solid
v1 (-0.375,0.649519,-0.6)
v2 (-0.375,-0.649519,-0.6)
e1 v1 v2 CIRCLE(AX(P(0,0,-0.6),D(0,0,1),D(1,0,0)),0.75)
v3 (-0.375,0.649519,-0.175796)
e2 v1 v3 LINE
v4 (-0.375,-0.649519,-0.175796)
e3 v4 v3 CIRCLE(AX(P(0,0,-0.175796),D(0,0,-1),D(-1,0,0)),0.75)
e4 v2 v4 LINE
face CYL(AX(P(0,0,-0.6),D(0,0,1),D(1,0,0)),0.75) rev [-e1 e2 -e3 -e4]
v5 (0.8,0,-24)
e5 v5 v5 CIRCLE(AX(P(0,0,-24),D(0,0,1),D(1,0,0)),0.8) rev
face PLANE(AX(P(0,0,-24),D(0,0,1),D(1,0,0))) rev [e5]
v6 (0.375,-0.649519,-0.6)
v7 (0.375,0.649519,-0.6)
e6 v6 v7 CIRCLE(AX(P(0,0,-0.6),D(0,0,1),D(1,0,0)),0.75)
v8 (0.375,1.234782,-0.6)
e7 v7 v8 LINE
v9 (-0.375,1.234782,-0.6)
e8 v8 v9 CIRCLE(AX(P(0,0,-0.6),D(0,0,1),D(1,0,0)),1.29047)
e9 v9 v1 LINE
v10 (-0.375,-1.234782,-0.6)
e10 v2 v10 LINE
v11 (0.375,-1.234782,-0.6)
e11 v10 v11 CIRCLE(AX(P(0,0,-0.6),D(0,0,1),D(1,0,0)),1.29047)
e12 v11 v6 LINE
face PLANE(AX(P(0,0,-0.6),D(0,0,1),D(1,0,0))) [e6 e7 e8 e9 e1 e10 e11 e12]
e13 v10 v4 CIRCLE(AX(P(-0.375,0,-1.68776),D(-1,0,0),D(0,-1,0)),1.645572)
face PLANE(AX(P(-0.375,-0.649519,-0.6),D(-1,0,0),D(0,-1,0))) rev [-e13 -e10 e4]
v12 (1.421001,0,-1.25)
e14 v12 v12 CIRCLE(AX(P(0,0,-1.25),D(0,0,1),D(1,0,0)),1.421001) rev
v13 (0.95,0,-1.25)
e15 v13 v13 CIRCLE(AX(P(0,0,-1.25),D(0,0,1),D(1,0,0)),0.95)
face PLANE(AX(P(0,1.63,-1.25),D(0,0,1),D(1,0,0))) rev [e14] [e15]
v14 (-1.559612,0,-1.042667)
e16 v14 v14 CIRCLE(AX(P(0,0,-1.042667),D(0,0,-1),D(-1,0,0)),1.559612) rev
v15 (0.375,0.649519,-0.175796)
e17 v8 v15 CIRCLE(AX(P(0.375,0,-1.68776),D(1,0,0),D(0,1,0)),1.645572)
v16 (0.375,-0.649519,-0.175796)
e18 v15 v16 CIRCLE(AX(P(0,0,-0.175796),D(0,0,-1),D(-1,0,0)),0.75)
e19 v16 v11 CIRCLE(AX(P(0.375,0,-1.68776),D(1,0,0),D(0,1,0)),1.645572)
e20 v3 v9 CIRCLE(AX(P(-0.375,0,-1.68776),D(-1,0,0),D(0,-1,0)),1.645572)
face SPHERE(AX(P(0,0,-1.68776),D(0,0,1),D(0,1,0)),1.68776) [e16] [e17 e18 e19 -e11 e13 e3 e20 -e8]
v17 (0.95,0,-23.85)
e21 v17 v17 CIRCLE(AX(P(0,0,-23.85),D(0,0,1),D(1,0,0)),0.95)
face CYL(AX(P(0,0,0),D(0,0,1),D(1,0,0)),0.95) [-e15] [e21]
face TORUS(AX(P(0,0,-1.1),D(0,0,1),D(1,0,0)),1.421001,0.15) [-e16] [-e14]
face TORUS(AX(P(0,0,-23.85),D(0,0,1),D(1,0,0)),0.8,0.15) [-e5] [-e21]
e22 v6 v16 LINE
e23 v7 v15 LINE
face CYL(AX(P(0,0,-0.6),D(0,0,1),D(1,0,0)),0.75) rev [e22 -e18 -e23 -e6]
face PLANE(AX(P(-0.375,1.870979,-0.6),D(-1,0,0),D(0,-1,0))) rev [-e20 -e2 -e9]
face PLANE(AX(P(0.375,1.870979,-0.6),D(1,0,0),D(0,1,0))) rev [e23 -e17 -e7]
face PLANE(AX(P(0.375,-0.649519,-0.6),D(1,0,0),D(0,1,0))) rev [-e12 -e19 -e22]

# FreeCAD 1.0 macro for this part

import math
import FreeCAD as App
import Part
import Sketcher


def edges_at(feature, points):
    """Names of the edges that pass closest to the given points."""
    edges = feature.Shape.Edges
    near = lambda p: min(range(len(edges)), key=lambda i: edges[i].distToShape(Part.Vertex(*p))[0])
    return sorted({f"Edge{near(p) + 1}" for p in points})

doc = App.newDocument("Part")
body = doc.addObject("PartDesign::Body", "Body")

# Sketch on YZ plane
sketch1 = body.newObject("Sketcher::SketchObject", "Sketch")
sketch1.AttachmentSupport = (doc.getObject("YZ_Plane"), [""])
sketch1.MapMode = "FlatFace"
sketch1.addGeometry(Part.LineSegment(App.Vector(0, 0, 0), App.Vector(0, -24, 0)), False)
sketch1.addGeometry(Part.LineSegment(App.Vector(0, -24, 0), App.Vector(0.9, -24, 0)), False)
sketch1.addGeometry(Part.LineSegment(App.Vector(0.9, -24, 0), App.Vector(0.9, -1.2, 0)), False)
sketch1.addGeometry(Part.LineSegment(App.Vector(0.9, -1.2, 0), App.Vector(1.6, -1.2, 0)), False)
sketch1.addGeometry(Part.ArcOfCircle(Part.Circle(App.Vector(0, -1.7, 0), App.Vector(0, 0, 1), 1.7), math.radians(15), math.radians(90)), False)
sketch1.addConstraint(Sketcher.Constraint("Coincident", 0, 2, 1, 1))
sketch1.addConstraint(Sketcher.Constraint("Coincident", 1, 2, 2, 1))
sketch1.addConstraint(Sketcher.Constraint("Coincident", 2, 2, 3, 1))
sketch1.addConstraint(Sketcher.Constraint("Coincident", 3, 2, 4, 1))
sketch1.addConstraint(Sketcher.Constraint("Coincident", 4, 2, 0, 1))
sketch1.addConstraint(Sketcher.Constraint("Vertical", 0))
sketch1.addConstraint(Sketcher.Constraint("Horizontal", 1))
sketch1.addConstraint(Sketcher.Constraint("Vertical", 2))
sketch1.addConstraint(Sketcher.Constraint("Horizontal", 3))
sketch1.addConstraint(Sketcher.Constraint("Coincident", 4, 2, -1, 1))
sketch1.addConstraint(Sketcher.Constraint("PointOnObject", 4, 3, -2))
sketch1.addConstraint(Sketcher.Constraint("DistanceY", 0, 2, 0, 1, 24.0))
sketch1.addConstraint(Sketcher.Constraint("DistanceX", 1, 1, 1, 2, 0.95))
sketch1.addConstraint(Sketcher.Constraint("DistanceX", 3, 1, 3, 2, 0.68))
sketch1.addConstraint(Sketcher.Constraint("DistanceY", 2, 1, 2, 2, 22.75))
revolution = body.newObject("PartDesign::Revolution", "Revolution")
revolution.Profile = sketch1
revolution.ReferenceAxis = (sketch1, ["V_Axis"])
revolution.Angle = 360

# Sketch on XY plane
sketch2 = body.newObject("Sketcher::SketchObject", "Sketch001")
sketch2.AttachmentSupport = (doc.getObject("XY_Plane"), [""])
sketch2.MapMode = "FlatFace"
sketch2.addGeometry(Part.LineSegment(App.Vector(-0.4, -0.6, 0), App.Vector(-0.4, -1.9, 0)), False)
sketch2.addGeometry(Part.LineSegment(App.Vector(-0.4, -1.9, 0), App.Vector(0.4, -1.9, 0)), False)
sketch2.addGeometry(Part.LineSegment(App.Vector(0.4, -1.9, 0), App.Vector(0.4, -0.6, 0)), False)
sketch2.addGeometry(Part.ArcOfCircle(Part.Circle(App.Vector(0, 0, 0), App.Vector(0, 0, 1), 0.8), math.radians(-60), math.radians(60)), False)
sketch2.addGeometry(Part.LineSegment(App.Vector(0.4, 0.6, 0), App.Vector(0.4, 1.9, 0)), False)
sketch2.addGeometry(Part.LineSegment(App.Vector(0.4, 1.9, 0), App.Vector(-0.4, 1.9, 0)), False)
sketch2.addGeometry(Part.LineSegment(App.Vector(-0.4, 1.9, 0), App.Vector(-0.4, 0.6, 0)), False)
sketch2.addGeometry(Part.ArcOfCircle(Part.Circle(App.Vector(0, 0, 0), App.Vector(0, 0, 1), 0.8), math.radians(120), math.radians(240)), False)
sketch2.addConstraint(Sketcher.Constraint("Coincident", 0, 2, 1, 1))
sketch2.addConstraint(Sketcher.Constraint("Coincident", 1, 2, 2, 1))
sketch2.addConstraint(Sketcher.Constraint("Coincident", 2, 2, 3, 1))
sketch2.addConstraint(Sketcher.Constraint("Coincident", 3, 2, 4, 1))
sketch2.addConstraint(Sketcher.Constraint("Coincident", 4, 2, 5, 1))
sketch2.addConstraint(Sketcher.Constraint("Coincident", 5, 2, 6, 1))
sketch2.addConstraint(Sketcher.Constraint("Coincident", 6, 2, 7, 1))
sketch2.addConstraint(Sketcher.Constraint("Coincident", 7, 2, 0, 1))
sketch2.addConstraint(Sketcher.Constraint("Vertical", 0))
sketch2.addConstraint(Sketcher.Constraint("Horizontal", 1))
sketch2.addConstraint(Sketcher.Constraint("Vertical", 2))
sketch2.addConstraint(Sketcher.Constraint("Vertical", 4))
sketch2.addConstraint(Sketcher.Constraint("Horizontal", 5))
sketch2.addConstraint(Sketcher.Constraint("Vertical", 6))
sketch2.addConstraint(Sketcher.Constraint("Coincident", 3, 3, -1, 1))
sketch2.addConstraint(Sketcher.Constraint("Coincident", 7, 3, -1, 1))
sketch2.addConstraint(Sketcher.Constraint("Equal", 3, 7))
sketch2.addConstraint(Sketcher.Constraint("Symmetric", 0, 2, 4, 2, -1, 1))
sketch2.addConstraint(Sketcher.Constraint("Horizontal", 3, 2, 6, 2))
sketch2.addConstraint(Sketcher.Constraint("Horizontal", 2, 2, 7, 2))
sketch2.addConstraint(Sketcher.Constraint("Radius", 3, 0.75))
sketch2.addConstraint(Sketcher.Constraint("DistanceX", 1, 1, 1, 2, 0.75))
sketch2.addConstraint(Sketcher.Constraint("DistanceY", 0, 2, 0, 1, 1.22146))
pocket1 = body.newObject("PartDesign::Pocket", "Pocket")
pocket1.Profile = sketch2
pocket1.Length = 0.6
doc.recompute()

fillet = body.newObject("PartDesign::Fillet", "Fillet")
fillet.Base = (pocket1, edges_at(pocket1, [(0, -1.63, -1.25), (0, -0.95, -24)]))
fillet.Radius = 0.15

doc.recompute()
